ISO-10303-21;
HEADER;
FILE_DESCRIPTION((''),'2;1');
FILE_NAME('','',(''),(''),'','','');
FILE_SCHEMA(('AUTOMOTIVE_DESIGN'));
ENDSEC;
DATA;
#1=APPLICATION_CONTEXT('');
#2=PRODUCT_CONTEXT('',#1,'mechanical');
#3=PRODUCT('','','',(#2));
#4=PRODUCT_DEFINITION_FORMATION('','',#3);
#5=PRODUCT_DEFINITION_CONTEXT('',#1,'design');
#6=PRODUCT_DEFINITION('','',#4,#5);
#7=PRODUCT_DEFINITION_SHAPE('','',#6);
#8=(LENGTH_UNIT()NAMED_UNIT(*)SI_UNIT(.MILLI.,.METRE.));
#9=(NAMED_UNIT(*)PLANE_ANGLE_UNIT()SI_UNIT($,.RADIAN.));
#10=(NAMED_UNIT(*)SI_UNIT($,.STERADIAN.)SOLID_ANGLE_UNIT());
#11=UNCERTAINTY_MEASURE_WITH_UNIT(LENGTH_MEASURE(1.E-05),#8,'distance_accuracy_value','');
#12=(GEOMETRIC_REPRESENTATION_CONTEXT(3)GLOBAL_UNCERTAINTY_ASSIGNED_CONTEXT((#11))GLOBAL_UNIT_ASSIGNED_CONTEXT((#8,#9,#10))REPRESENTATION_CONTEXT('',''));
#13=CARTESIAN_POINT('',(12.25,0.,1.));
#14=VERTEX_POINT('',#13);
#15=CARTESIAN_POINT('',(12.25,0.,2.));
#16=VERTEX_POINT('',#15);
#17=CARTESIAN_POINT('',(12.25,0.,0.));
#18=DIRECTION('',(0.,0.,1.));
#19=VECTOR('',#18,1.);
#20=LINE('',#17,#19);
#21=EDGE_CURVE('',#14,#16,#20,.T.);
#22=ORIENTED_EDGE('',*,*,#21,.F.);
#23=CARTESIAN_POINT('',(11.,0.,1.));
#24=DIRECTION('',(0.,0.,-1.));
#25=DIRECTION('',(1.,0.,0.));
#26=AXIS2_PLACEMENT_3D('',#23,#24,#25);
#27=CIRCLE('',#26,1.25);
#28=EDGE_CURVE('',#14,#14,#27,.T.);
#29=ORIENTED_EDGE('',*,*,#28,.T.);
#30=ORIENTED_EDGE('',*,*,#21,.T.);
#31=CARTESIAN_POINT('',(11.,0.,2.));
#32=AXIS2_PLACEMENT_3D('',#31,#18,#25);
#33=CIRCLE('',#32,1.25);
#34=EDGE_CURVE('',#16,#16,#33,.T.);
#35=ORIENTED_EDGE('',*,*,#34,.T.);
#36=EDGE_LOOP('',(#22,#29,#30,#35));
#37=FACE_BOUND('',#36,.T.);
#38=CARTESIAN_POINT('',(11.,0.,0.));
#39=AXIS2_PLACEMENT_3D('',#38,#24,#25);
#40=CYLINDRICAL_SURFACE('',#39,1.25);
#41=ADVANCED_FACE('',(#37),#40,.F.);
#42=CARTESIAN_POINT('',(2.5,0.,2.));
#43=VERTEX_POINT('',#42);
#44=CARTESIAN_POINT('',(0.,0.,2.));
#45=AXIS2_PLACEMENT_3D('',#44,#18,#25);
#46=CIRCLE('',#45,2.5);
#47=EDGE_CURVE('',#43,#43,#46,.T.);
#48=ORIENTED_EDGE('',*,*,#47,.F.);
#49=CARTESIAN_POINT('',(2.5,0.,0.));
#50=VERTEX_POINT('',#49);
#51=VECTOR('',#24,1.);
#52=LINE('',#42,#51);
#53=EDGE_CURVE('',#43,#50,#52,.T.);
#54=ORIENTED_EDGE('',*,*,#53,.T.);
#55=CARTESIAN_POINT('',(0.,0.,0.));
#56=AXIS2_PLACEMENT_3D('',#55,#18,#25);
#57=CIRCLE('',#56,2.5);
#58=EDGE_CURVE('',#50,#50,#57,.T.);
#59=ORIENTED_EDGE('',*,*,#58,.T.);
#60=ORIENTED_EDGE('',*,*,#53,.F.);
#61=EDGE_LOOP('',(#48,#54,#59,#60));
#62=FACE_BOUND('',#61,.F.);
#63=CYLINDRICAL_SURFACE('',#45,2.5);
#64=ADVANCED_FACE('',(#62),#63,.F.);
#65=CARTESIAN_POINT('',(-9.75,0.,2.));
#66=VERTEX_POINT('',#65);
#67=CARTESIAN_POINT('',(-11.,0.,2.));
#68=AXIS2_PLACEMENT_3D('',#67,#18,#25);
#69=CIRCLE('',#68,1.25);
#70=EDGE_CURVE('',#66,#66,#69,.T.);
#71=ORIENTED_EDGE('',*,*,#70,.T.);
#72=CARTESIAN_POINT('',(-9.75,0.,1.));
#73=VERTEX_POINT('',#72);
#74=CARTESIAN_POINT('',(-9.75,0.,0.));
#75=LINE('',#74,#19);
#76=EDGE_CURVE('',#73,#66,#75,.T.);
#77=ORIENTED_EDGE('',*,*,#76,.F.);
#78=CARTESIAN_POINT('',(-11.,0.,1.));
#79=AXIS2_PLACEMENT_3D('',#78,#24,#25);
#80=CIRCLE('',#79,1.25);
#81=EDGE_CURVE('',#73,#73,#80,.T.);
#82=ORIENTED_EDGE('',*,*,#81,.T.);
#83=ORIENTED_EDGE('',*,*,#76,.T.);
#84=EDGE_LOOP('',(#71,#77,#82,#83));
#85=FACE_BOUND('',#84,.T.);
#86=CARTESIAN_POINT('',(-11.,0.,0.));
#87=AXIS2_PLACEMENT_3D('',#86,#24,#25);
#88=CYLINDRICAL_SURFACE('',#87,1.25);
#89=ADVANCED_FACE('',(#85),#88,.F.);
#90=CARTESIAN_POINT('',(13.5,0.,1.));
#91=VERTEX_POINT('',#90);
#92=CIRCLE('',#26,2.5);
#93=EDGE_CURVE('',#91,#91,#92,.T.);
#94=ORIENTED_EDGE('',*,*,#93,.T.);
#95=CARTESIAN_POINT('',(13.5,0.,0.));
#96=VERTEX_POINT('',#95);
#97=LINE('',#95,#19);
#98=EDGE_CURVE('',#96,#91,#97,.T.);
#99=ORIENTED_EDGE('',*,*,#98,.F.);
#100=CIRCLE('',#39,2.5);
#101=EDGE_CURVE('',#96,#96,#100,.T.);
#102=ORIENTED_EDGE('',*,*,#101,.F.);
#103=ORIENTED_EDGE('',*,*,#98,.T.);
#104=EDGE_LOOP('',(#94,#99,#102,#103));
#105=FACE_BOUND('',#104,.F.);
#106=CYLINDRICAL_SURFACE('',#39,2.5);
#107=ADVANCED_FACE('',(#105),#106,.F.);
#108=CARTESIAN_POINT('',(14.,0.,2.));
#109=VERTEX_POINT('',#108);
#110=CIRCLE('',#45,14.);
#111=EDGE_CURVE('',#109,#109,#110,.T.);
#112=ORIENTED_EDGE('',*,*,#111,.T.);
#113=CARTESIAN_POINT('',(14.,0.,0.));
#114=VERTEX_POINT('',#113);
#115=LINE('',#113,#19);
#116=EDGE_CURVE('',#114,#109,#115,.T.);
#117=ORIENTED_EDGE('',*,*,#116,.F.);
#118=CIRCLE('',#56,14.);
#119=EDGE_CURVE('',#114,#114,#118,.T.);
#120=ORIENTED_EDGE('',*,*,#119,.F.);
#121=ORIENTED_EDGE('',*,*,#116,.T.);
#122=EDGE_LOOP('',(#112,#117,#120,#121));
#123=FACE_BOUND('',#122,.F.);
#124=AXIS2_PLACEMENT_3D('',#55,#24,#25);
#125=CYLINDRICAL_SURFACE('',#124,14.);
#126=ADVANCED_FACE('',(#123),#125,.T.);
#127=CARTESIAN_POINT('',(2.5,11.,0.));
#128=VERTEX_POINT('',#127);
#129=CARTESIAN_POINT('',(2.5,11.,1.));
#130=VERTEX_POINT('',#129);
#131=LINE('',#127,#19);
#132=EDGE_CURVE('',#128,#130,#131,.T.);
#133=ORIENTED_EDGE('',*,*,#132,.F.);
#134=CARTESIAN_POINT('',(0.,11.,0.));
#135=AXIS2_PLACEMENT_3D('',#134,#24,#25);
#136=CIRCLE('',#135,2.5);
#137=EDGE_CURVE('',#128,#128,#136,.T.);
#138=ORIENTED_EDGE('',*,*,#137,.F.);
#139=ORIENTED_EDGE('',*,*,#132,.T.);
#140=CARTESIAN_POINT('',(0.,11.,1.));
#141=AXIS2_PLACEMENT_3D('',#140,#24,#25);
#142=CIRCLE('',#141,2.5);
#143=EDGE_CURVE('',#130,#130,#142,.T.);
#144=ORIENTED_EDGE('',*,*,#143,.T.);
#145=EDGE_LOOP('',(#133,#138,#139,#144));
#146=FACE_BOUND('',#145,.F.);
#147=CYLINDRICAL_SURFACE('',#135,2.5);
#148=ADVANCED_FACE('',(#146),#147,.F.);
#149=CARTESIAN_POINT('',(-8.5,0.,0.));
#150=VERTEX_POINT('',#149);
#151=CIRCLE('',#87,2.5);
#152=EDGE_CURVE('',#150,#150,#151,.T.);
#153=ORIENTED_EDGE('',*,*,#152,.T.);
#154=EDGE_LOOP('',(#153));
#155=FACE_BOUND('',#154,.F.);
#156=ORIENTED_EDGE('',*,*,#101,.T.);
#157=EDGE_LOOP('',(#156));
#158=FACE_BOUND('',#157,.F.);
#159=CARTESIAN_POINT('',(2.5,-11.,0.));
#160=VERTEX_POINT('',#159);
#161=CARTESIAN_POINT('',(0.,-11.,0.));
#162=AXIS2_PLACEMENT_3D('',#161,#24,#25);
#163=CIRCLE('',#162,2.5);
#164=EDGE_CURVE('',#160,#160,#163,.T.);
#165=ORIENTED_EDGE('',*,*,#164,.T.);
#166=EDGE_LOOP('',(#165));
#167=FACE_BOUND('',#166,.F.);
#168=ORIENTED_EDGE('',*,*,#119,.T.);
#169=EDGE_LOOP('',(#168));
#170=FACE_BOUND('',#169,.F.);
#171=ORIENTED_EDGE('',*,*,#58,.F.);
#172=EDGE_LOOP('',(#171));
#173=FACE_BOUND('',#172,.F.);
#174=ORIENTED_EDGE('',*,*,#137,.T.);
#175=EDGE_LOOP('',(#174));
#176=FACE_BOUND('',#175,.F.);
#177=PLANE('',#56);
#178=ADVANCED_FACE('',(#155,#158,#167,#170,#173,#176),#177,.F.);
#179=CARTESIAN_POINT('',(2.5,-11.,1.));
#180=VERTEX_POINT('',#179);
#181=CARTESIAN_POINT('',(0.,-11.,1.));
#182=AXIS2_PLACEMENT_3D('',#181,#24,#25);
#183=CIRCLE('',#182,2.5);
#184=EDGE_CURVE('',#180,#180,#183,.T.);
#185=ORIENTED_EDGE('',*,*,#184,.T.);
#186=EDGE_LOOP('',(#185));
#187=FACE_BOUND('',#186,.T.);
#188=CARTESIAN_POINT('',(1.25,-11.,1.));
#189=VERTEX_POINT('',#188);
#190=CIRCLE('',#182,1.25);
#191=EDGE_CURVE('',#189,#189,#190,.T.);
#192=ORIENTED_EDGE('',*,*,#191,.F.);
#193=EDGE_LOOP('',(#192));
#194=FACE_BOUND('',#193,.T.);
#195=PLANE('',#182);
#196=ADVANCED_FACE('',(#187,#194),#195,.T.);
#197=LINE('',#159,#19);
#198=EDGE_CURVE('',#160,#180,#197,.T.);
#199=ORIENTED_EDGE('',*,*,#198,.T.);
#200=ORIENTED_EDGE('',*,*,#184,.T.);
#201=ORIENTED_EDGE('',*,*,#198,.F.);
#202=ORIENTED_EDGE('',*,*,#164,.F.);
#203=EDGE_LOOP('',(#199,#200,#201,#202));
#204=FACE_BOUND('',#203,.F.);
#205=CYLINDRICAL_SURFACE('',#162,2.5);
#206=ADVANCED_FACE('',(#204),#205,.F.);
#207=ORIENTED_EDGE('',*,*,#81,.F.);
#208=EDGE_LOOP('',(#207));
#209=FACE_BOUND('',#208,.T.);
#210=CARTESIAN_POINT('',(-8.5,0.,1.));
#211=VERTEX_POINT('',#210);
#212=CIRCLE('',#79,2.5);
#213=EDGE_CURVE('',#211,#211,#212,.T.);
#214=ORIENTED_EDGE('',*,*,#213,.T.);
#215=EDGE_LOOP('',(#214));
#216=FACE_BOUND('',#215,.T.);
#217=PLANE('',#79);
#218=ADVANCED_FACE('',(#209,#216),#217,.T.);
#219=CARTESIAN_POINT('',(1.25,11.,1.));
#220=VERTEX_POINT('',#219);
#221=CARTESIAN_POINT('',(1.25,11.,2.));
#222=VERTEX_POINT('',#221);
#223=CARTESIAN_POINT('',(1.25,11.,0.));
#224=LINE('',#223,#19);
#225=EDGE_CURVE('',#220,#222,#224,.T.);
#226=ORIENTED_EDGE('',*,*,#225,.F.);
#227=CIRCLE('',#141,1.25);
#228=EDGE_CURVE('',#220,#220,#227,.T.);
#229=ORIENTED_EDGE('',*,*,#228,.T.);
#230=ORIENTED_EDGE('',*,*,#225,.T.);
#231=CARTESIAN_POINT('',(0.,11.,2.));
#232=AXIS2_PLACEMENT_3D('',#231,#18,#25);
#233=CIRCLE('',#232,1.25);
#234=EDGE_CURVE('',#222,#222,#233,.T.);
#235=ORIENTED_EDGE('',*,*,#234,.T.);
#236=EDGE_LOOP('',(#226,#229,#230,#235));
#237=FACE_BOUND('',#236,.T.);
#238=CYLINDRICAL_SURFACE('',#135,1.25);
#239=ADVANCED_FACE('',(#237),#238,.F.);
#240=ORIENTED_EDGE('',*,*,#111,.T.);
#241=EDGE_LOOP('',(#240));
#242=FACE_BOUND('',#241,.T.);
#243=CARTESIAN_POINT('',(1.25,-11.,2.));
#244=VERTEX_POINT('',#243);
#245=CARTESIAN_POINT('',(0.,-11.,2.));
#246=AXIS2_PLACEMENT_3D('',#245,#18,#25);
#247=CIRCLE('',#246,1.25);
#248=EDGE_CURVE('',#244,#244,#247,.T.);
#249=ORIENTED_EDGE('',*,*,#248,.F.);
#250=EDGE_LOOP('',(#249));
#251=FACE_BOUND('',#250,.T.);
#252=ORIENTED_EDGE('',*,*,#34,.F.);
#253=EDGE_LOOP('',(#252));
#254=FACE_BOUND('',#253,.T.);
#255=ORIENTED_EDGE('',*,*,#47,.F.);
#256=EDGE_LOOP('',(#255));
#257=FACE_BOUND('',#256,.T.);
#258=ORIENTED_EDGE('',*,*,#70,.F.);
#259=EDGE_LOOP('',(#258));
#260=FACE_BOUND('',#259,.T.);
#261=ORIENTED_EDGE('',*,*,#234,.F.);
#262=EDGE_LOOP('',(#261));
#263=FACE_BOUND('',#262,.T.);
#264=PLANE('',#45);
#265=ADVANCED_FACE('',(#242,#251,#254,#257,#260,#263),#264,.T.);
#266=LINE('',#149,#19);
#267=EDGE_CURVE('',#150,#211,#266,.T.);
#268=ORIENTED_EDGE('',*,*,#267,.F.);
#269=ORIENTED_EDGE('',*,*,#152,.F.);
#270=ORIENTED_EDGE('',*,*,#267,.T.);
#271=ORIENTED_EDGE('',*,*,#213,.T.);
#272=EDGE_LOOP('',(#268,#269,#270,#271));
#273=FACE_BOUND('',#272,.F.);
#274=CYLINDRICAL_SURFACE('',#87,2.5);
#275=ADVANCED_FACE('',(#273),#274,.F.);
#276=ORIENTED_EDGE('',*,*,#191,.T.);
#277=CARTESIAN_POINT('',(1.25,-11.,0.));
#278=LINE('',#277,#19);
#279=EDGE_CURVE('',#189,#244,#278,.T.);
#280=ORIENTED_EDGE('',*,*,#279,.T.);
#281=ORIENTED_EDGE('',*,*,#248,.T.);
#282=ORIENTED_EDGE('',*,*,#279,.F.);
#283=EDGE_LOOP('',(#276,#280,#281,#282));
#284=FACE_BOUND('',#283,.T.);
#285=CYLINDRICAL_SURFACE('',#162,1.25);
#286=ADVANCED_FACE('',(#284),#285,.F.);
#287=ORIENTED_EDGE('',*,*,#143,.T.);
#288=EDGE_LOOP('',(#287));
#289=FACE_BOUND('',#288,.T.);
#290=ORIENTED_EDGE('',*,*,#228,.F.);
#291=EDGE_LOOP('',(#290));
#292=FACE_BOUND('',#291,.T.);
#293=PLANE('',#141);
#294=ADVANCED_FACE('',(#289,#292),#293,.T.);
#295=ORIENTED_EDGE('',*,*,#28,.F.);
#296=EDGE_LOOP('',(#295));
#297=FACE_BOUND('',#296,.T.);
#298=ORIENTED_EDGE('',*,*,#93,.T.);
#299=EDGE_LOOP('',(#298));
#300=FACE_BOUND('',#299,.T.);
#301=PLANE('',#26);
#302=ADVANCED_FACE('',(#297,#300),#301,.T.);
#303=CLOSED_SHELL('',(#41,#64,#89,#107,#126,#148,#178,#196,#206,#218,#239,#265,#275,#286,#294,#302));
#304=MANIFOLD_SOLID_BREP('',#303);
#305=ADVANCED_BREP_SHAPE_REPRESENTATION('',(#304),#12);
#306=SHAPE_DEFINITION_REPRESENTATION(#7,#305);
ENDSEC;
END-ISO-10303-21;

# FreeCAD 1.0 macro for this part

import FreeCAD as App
import Part
import Sketcher

V = App.Vector

doc = App.newDocument("Part")
body = doc.addObject("PartDesign::Body", "Body")

sketch1 = body.newObject("Sketcher::SketchObject", "Sketch")
sketch1.AttachmentSupport = (doc.getObject("XY_Plane"), [""])
sketch1.MapMode = "FlatFace"
sketch1.addGeometry([
    Part.Circle(V(0, 0, 0), V(0, 0, 1), 14),
    Part.Circle(V(0, -11, 0), V(0, 0, 1), 1.25),
    Part.Circle(V(-11, 0, 0), V(0, 0, 1), 1.25),
    Part.Circle(V(11, 0, 0), V(0, 0, 1), 1.25),
    Part.Circle(V(0, 11, 0), V(0, 0, 1), 1.25),
], False)
sketch1.addConstraint([
    Sketcher.Constraint("Coincident", 0, 3, -1, 1),
    Sketcher.Constraint("Equal", 1, 2),
    Sketcher.Constraint("Equal", 2, 3),
    Sketcher.Constraint("Equal", 3, 4),
    Sketcher.Constraint("Symmetric", 2, 3, 3, 3, -1, 1),
    Sketcher.Constraint("Symmetric", 1, 3, 4, 3, -1, 1),
    Sketcher.Constraint("PointOnObject", 1, 3, -2),
    Sketcher.Constraint("PointOnObject", 2, 3, -1),
    Sketcher.Constraint("Diameter", 0, 28.0),
    Sketcher.Constraint("Diameter", 1, 2.5),
    Sketcher.Constraint("DistanceY", 1, 3, -1, 1, 11.0),
    Sketcher.Constraint("DistanceX", 2, 3, -1, 1, 11.0),
])
pad1 = body.newObject("PartDesign::Pad", "Pad")
pad1.Profile = sketch1
pad1.Length = 2

sketch2 = body.newObject("Sketcher::SketchObject", "Sketch001")
sketch2.AttachmentSupport = (doc.getObject("XY_Plane"), [""])
sketch2.MapMode = "FlatFace"
sketch2.AttachmentOffset = App.Placement(V(0, 0, 2), App.Rotation())
sketch2.addGeometry(Part.Circle(V(0, 0, 0), V(0, 0, 1), 2.5), False)
sketch2.addConstraint([
    Sketcher.Constraint("Coincident", 0, 3, -1, 1),
    Sketcher.Constraint("Diameter", 0, 5.0),
])
pocket1 = body.newObject("PartDesign::Pocket", "Pocket")
pocket1.Profile = sketch2
pocket1.Length = 9

sketch3 = body.newObject("Sketcher::SketchObject", "Sketch002")
sketch3.AttachmentSupport = (doc.getObject("XY_Plane"), [""])
sketch3.MapMode = "FlatFace"
sketch3.addGeometry([
    Part.Circle(V(0, -11, 0), V(0, 0, 1), 2.5),
    Part.Circle(V(11, 0, 0), V(0, 0, 1), 2.5),
    Part.Circle(V(0, 11, 0), V(0, 0, 1), 2.5),
    Part.Circle(V(-11, 0, 0), V(0, 0, 1), 2.5),
], False)
sketch3.addConstraint([
    Sketcher.Constraint("Equal", 0, 1),
    Sketcher.Constraint("Equal", 1, 2),
    Sketcher.Constraint("Equal", 2, 3),
    Sketcher.Constraint("Symmetric", 0, 3, 2, 3, -1, 1),
    Sketcher.Constraint("Symmetric", 1, 3, 3, 3, -1, 1),
    Sketcher.Constraint("PointOnObject", 0, 3, -2),
    Sketcher.Constraint("PointOnObject", 1, 3, -1),
    Sketcher.Constraint("Diameter", 0, 5.0),
    Sketcher.Constraint("DistanceY", 0, 3, -1, 1, 11.0),
    Sketcher.Constraint("DistanceX", -1, 1, 1, 3, 11.0),
])
pocket2 = body.newObject("PartDesign::Pocket", "Pocket001")
pocket2.Profile = sketch3
pocket2.Length = 1
pocket2.Reversed = True

doc.recompute()
